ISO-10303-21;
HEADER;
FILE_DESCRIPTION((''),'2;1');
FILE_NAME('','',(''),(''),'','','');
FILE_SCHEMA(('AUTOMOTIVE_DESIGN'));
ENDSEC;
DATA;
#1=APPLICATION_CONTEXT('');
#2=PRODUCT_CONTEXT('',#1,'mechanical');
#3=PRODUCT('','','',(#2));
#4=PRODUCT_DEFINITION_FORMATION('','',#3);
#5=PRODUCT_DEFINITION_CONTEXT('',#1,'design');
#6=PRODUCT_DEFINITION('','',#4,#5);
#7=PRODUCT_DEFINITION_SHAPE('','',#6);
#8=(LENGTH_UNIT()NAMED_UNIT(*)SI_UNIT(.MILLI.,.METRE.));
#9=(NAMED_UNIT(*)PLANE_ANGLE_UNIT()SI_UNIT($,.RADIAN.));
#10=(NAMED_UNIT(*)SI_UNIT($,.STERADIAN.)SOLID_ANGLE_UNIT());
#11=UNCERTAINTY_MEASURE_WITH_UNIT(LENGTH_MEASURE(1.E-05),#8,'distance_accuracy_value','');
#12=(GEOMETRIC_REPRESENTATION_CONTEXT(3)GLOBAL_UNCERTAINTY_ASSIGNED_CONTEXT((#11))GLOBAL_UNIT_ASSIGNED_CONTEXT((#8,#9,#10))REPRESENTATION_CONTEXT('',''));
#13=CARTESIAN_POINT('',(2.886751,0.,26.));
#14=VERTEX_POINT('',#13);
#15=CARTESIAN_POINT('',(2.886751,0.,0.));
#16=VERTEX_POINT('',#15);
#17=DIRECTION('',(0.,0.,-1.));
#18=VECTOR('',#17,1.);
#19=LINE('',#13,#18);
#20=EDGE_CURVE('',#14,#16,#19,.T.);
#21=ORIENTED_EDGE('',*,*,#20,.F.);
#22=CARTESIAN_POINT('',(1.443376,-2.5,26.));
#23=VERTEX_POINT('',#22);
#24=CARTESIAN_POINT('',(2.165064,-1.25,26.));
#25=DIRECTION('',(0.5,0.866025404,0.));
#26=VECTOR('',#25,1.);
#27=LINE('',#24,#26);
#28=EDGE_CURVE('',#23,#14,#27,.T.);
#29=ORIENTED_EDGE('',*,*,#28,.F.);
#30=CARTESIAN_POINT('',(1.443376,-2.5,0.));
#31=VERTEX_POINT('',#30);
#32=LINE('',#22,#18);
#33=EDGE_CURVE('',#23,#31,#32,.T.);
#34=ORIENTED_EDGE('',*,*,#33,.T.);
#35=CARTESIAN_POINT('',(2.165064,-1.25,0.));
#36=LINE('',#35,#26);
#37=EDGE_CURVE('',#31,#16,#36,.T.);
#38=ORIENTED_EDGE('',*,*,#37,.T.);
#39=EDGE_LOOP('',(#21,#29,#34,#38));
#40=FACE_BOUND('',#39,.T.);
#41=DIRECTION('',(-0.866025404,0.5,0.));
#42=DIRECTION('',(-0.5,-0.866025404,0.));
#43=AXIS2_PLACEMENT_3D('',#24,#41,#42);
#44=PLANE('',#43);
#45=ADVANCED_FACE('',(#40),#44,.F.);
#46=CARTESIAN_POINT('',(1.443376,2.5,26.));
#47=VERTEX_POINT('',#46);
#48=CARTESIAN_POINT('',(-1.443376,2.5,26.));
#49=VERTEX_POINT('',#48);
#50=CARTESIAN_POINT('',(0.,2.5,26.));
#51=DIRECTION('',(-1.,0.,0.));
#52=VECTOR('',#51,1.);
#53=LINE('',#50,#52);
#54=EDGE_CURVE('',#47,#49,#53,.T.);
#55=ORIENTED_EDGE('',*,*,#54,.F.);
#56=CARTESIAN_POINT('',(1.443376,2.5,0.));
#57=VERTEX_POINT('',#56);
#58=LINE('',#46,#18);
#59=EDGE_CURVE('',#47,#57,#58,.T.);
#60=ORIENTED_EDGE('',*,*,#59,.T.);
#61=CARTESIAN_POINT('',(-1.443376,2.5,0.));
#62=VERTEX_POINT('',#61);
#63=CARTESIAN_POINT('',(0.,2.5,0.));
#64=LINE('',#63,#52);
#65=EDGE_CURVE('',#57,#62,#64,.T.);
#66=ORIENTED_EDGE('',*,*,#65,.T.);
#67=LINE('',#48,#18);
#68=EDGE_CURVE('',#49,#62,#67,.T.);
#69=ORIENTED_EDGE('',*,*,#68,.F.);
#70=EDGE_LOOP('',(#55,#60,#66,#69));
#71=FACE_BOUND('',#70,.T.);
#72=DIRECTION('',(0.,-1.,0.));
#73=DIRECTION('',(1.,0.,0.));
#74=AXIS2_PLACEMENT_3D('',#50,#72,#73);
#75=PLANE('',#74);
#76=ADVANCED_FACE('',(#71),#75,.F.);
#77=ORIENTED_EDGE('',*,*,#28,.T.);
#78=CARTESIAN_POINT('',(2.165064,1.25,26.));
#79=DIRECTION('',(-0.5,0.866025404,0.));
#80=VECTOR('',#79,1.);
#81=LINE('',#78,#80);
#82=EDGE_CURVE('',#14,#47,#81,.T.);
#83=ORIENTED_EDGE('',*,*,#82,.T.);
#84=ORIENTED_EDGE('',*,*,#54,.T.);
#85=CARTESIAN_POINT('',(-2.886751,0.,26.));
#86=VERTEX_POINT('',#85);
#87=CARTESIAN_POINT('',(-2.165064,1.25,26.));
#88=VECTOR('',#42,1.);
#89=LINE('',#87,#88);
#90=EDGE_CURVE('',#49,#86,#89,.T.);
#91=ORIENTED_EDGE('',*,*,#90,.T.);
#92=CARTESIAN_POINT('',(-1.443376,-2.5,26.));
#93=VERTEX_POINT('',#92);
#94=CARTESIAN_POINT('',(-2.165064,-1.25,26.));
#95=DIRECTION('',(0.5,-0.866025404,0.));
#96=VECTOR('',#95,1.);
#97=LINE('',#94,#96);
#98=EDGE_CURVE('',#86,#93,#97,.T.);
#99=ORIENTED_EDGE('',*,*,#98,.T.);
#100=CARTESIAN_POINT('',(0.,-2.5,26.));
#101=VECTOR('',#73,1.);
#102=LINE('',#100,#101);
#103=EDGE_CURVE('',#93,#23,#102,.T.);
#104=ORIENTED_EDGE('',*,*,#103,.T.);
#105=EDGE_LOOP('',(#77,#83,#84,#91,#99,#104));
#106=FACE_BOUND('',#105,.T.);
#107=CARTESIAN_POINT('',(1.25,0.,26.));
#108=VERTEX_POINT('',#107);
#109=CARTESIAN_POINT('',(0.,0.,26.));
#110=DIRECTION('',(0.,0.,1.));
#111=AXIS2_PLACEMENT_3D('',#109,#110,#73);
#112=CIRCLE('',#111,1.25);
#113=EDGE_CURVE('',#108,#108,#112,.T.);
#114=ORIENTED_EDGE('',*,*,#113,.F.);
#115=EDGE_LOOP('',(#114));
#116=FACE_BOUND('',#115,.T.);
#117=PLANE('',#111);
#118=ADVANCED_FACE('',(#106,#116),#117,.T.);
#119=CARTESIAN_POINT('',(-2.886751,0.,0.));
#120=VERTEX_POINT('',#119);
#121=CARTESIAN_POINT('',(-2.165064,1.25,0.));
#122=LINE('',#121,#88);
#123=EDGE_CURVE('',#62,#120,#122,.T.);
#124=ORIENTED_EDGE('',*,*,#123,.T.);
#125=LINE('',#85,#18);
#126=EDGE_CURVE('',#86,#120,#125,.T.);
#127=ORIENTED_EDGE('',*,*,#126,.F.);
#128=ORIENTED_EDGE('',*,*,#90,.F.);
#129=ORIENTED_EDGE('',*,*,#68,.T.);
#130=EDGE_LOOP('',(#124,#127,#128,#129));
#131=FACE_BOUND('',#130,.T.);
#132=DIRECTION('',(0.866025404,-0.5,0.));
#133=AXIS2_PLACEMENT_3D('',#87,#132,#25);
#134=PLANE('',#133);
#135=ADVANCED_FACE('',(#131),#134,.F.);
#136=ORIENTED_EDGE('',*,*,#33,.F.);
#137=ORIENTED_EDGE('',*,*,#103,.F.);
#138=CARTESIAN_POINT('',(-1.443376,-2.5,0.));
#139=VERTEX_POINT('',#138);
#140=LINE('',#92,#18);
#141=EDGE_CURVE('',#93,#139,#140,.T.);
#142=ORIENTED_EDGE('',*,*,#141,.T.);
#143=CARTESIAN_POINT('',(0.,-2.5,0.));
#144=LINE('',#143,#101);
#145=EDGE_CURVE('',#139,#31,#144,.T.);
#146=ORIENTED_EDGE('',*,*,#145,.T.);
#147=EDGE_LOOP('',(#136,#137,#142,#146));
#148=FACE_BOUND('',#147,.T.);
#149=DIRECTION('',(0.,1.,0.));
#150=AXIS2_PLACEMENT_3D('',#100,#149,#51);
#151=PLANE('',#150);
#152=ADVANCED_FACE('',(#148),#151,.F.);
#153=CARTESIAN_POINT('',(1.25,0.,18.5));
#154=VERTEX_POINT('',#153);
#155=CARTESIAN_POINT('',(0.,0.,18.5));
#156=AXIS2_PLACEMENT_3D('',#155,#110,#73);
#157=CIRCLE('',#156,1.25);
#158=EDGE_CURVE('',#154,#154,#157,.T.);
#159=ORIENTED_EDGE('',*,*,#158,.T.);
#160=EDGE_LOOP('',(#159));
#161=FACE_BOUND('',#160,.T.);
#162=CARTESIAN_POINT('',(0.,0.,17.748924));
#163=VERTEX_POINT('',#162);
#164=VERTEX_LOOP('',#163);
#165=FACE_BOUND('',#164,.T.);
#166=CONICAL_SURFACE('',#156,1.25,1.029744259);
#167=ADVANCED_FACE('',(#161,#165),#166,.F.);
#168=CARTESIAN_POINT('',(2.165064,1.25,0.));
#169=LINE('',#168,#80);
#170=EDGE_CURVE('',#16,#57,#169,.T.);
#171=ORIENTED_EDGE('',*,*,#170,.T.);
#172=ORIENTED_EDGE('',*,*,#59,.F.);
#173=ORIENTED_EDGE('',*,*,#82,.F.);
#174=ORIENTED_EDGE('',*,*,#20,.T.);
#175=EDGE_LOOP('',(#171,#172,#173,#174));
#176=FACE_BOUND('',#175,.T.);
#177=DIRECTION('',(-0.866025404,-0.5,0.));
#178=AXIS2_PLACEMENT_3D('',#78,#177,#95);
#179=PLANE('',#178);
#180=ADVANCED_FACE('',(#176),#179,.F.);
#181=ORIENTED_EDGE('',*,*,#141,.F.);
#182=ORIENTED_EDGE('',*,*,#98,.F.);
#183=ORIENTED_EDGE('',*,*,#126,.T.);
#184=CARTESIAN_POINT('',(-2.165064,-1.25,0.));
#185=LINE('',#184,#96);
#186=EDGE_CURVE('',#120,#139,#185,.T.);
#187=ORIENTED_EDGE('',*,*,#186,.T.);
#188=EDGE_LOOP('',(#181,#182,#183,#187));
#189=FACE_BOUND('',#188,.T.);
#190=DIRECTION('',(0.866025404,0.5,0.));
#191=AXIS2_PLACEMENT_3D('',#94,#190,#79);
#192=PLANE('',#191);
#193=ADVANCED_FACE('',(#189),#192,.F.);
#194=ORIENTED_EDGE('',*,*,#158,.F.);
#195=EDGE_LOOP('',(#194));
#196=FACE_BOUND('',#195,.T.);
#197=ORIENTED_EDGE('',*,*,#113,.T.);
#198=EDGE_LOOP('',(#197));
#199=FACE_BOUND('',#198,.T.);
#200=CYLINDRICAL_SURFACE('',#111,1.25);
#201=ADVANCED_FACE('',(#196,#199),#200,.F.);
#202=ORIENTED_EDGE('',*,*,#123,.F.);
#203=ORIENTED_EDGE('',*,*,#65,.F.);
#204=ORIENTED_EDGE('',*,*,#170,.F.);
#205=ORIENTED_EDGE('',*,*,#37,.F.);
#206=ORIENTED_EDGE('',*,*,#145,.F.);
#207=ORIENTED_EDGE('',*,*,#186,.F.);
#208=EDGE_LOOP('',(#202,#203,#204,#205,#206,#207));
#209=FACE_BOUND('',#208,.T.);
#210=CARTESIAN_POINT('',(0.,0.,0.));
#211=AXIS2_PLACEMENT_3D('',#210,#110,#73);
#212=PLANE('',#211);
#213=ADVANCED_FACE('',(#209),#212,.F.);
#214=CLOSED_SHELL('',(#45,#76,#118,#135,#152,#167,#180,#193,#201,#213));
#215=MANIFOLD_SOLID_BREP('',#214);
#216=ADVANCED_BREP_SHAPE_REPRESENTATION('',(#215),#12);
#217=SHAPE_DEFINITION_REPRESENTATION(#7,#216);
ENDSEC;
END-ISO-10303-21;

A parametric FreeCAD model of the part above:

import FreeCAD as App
import Part
import Sketcher
Q = App.Units.Quantity

doc = App.newDocument("Part")
params = doc.addObject("Spreadsheet::Sheet", "Params")
for row, (alias, value) in enumerate([
    ("pad1_length", "26 mm"),
    ("sketch2_diameter", "2.5 mm"),
    ("hole_diameter", "2.5 mm"),
    ("hole_depth", "7.5 mm"),
], start=1):
    params.set(f"A{row}", alias)
    params.set(f"B{row}", "=" + value)
    params.setAlias(f"B{row}", alias)

body = doc.addObject("PartDesign::Body", "Body")

sketch1 = body.newObject("Sketcher::SketchObject", "Sketch")
sketch1.AttachmentSupport = (doc.getObject("XY_Plane"), [""])
sketch1.MapMode = "FlatFace"
sketch1.addGeometry([
    Part.LineSegment(App.Vector(-1.4, -2.5, 0), App.Vector(1.4, -2.5, 0)),
    Part.LineSegment(App.Vector(1.4, -2.5, 0), App.Vector(2.9, 0, 0)),
    Part.LineSegment(App.Vector(2.9, 0, 0), App.Vector(1.4, 2.5, 0)),
    Part.LineSegment(App.Vector(1.4, 2.5, 0), App.Vector(-1.4, 2.5, 0)),
    Part.LineSegment(App.Vector(-1.4, 2.5, 0), App.Vector(-2.9, 0, 0)),
    Part.LineSegment(App.Vector(-2.9, 0, 0), App.Vector(-1.4, -2.5, 0)),
], False)
sketch1.addConstraint([
    Sketcher.Constraint("Coincident", 0, 2, 1, 1),
    Sketcher.Constraint("Coincident", 1, 2, 2, 1),
    Sketcher.Constraint("Coincident", 2, 2, 3, 1),
    Sketcher.Constraint("Coincident", 3, 2, 4, 1),
    Sketcher.Constraint("Coincident", 4, 2, 5, 1),
    Sketcher.Constraint("Coincident", 5, 2, 0, 1),
    Sketcher.Constraint("Horizontal", 0),
    Sketcher.Constraint("Horizontal", 3),
    Sketcher.Constraint("Symmetric", 0, 2, 3, 2, -1, 1),
    Sketcher.Constraint("Symmetric", 1, 2, 4, 2, -1, 1),
    Sketcher.Constraint("PointOnObject", 1, 2, -1),
    Sketcher.Constraint("Parallel", 2, 5),
    Sketcher.Constraint("Vertical", 0, 2, 2, 2),
    Sketcher.Constraint("Angle", 1, Q("60 deg")),
    Sketcher.Constraint("DistanceY", 0, 2, 2, 2, Q("5 mm")),
    Sketcher.Constraint("DistanceX", 0, 1, 0, 2, Q("2.886751 mm")),
])
pad1 = body.newObject("PartDesign::Pad", "Pad")
pad1.Profile = sketch1
pad1.setExpression("Length", "Params.pad1_length")

sketch2 = body.newObject("Sketcher::SketchObject", "Sketch001")
sketch2.AttachmentSupport = (doc.getObject("XY_Plane"), [""])
sketch2.MapMode = "FlatFace"
sketch2.AttachmentOffset = App.Placement(App.Vector(0, 0, 26), App.Rotation())
sketch2.addGeometry(Part.Circle(App.Vector(0, 0, 0), App.Vector(0, 0, 1), 1.2), False)
sketch2.addConstraint([
    Sketcher.Constraint("Coincident", 0, 3, -1, 1),
    Sketcher.Constraint("Diameter", 0, Q("2.5 mm")),
])
sketch2.setExpression("Constraints[1]", "Params.sketch2_diameter")
doc.recompute()
hole = body.newObject("PartDesign::Hole", "Hole")
hole.Profile = sketch2
hole.ThreadType = "None"
hole.setExpression("Diameter", "Params.hole_diameter")
hole.DepthType = "Dimension"
hole.setExpression("Depth", "Params.hole_depth")
hole.DrillPoint = "Angled"
hole.DrillPointAngle = 118

doc.recompute()
